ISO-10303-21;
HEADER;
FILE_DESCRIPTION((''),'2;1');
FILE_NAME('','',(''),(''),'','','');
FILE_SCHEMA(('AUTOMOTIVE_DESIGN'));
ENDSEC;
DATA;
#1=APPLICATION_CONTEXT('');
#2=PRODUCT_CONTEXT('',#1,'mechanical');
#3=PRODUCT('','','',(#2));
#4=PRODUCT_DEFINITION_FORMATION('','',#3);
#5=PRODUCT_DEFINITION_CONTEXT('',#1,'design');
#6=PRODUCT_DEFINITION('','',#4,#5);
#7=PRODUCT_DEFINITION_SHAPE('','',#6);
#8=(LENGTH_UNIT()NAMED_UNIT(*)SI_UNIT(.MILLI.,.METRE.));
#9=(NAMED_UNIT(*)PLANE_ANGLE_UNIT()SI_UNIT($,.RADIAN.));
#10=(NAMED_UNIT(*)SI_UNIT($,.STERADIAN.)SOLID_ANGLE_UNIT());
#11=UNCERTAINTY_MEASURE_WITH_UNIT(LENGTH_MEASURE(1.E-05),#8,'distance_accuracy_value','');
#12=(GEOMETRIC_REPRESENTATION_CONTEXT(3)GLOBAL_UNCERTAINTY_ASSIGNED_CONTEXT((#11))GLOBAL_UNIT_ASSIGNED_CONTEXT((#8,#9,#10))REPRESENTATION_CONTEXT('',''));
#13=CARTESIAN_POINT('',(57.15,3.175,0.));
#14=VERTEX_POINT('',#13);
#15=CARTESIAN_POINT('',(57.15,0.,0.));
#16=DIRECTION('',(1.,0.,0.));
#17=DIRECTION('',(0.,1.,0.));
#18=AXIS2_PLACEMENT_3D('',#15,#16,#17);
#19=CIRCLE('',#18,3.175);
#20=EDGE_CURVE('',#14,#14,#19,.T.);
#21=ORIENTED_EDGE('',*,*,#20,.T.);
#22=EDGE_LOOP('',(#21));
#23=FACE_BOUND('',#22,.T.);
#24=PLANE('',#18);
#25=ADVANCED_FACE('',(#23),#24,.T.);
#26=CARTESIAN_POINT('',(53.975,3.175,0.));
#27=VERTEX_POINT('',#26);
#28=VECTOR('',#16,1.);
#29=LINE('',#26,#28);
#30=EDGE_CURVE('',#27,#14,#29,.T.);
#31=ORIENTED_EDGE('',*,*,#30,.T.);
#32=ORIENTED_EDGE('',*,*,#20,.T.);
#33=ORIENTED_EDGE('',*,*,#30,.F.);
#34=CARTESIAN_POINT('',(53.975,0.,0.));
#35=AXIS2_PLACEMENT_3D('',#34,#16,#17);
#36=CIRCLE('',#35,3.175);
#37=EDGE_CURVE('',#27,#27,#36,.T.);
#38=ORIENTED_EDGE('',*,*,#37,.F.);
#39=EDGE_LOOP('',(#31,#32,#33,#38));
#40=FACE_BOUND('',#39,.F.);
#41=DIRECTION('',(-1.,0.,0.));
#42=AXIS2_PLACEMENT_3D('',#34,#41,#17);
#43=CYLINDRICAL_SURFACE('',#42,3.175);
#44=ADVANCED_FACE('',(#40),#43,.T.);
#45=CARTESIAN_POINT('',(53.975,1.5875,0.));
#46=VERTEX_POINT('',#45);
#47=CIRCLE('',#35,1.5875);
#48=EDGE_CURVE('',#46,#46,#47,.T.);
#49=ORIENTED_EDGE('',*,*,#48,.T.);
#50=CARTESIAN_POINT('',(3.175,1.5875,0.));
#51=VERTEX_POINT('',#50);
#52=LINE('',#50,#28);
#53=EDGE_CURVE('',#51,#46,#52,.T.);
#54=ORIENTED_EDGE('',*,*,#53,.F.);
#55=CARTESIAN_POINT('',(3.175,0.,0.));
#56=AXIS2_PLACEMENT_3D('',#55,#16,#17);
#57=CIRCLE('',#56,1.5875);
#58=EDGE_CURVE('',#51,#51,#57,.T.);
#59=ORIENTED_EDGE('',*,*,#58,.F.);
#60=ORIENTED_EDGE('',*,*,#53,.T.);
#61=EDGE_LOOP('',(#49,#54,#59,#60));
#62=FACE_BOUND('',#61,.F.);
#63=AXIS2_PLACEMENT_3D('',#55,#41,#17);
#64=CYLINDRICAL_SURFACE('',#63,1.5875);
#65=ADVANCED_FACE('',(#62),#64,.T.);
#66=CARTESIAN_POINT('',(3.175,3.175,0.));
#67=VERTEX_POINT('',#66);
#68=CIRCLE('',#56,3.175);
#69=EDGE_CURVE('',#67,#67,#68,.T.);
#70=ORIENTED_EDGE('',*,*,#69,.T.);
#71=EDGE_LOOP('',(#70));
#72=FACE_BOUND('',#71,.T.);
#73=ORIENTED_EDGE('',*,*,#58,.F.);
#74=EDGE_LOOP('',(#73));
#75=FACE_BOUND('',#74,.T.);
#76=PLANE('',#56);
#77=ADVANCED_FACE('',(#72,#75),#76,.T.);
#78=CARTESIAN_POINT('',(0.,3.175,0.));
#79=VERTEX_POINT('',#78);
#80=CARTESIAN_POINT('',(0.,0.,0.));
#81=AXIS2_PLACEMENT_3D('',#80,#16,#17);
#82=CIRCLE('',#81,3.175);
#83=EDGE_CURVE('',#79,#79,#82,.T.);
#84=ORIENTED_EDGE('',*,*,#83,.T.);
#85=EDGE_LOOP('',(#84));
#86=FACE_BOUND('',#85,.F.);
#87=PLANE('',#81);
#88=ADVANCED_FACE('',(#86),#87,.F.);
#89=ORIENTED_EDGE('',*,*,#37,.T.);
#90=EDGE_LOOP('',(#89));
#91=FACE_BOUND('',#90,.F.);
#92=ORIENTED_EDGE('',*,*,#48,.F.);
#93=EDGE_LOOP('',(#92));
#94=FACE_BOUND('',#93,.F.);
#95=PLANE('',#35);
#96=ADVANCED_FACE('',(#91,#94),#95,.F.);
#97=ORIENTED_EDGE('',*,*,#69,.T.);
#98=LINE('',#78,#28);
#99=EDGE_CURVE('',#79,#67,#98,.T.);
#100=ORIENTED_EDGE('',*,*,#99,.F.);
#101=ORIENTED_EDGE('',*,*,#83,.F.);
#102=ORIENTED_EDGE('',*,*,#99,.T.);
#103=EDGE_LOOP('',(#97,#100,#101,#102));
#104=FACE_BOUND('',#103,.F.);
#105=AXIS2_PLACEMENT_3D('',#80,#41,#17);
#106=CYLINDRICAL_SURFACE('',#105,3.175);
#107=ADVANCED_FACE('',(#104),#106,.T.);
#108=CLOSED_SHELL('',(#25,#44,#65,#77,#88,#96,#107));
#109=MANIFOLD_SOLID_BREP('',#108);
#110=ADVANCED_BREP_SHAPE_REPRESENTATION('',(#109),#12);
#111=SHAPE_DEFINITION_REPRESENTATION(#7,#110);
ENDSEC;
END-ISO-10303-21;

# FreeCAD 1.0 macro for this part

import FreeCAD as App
import Part
import Sketcher

V = App.Vector
Q = App.Units.Quantity

doc = App.newDocument("Part")
body = doc.addObject("PartDesign::Body", "Body")

sketch1 = body.newObject("Sketcher::SketchObject", "Sketch")
sketch1.AttachmentSupport = (doc.getObject("YZ_Plane"), [""])
sketch1.MapMode = "FlatFace"
sketch1.addGeometry(Part.Circle(V(0, 0, 0), V(0, 0, 1), 3.2), False)
sketch1.addConstraint(Sketcher.Constraint("Coincident", 0, 3, -1, 1))
sketch1.addConstraint(Sketcher.Constraint("Diameter", 0, Q("0.25 in")))
pad1 = body.newObject("PartDesign::Pad", "Pad")
pad1.Profile = sketch1
pad1.Length = Q("0.125 in")

sketch2 = body.newObject("Sketcher::SketchObject", "Sketch001")
sketch2.AttachmentSupport = (doc.getObject("YZ_Plane"), [""])
sketch2.MapMode = "FlatFace"
sketch2.AttachmentOffset = App.Placement(V(0, 0, 0.125 * 25.4), App.Rotation())
sketch2.addGeometry(Part.Circle(V(0, 0, 0), V(0, 0, 1), 1.6), False)
sketch2.addConstraint(Sketcher.Constraint("Coincident", 0, 3, -1, 1))
sketch2.addConstraint(Sketcher.Constraint("Diameter", 0, Q("0.125 in")))
pad2 = body.newObject("PartDesign::Pad", "Pad001")
pad2.Profile = sketch2
pad2.Length = Q("2 in")

sketch3 = body.newObject("Sketcher::SketchObject", "Sketch002")
sketch3.AttachmentSupport = (doc.getObject("YZ_Plane"), [""])
sketch3.MapMode = "FlatFace"
sketch3.AttachmentOffset = App.Placement(V(0, 0, 2.125 * 25.4), App.Rotation())
sketch3.addGeometry(Part.Circle(V(0, 0, 0), V(0, 0, 1), 3.2), False)
sketch3.addConstraint(Sketcher.Constraint("Coincident", 0, 3, -1, 1))
sketch3.addConstraint(Sketcher.Constraint("Diameter", 0, Q("0.25 in")))
pad3 = body.newObject("PartDesign::Pad", "Pad002")
pad3.Profile = sketch3
pad3.Length = Q("0.125 in")

doc.recompute()
